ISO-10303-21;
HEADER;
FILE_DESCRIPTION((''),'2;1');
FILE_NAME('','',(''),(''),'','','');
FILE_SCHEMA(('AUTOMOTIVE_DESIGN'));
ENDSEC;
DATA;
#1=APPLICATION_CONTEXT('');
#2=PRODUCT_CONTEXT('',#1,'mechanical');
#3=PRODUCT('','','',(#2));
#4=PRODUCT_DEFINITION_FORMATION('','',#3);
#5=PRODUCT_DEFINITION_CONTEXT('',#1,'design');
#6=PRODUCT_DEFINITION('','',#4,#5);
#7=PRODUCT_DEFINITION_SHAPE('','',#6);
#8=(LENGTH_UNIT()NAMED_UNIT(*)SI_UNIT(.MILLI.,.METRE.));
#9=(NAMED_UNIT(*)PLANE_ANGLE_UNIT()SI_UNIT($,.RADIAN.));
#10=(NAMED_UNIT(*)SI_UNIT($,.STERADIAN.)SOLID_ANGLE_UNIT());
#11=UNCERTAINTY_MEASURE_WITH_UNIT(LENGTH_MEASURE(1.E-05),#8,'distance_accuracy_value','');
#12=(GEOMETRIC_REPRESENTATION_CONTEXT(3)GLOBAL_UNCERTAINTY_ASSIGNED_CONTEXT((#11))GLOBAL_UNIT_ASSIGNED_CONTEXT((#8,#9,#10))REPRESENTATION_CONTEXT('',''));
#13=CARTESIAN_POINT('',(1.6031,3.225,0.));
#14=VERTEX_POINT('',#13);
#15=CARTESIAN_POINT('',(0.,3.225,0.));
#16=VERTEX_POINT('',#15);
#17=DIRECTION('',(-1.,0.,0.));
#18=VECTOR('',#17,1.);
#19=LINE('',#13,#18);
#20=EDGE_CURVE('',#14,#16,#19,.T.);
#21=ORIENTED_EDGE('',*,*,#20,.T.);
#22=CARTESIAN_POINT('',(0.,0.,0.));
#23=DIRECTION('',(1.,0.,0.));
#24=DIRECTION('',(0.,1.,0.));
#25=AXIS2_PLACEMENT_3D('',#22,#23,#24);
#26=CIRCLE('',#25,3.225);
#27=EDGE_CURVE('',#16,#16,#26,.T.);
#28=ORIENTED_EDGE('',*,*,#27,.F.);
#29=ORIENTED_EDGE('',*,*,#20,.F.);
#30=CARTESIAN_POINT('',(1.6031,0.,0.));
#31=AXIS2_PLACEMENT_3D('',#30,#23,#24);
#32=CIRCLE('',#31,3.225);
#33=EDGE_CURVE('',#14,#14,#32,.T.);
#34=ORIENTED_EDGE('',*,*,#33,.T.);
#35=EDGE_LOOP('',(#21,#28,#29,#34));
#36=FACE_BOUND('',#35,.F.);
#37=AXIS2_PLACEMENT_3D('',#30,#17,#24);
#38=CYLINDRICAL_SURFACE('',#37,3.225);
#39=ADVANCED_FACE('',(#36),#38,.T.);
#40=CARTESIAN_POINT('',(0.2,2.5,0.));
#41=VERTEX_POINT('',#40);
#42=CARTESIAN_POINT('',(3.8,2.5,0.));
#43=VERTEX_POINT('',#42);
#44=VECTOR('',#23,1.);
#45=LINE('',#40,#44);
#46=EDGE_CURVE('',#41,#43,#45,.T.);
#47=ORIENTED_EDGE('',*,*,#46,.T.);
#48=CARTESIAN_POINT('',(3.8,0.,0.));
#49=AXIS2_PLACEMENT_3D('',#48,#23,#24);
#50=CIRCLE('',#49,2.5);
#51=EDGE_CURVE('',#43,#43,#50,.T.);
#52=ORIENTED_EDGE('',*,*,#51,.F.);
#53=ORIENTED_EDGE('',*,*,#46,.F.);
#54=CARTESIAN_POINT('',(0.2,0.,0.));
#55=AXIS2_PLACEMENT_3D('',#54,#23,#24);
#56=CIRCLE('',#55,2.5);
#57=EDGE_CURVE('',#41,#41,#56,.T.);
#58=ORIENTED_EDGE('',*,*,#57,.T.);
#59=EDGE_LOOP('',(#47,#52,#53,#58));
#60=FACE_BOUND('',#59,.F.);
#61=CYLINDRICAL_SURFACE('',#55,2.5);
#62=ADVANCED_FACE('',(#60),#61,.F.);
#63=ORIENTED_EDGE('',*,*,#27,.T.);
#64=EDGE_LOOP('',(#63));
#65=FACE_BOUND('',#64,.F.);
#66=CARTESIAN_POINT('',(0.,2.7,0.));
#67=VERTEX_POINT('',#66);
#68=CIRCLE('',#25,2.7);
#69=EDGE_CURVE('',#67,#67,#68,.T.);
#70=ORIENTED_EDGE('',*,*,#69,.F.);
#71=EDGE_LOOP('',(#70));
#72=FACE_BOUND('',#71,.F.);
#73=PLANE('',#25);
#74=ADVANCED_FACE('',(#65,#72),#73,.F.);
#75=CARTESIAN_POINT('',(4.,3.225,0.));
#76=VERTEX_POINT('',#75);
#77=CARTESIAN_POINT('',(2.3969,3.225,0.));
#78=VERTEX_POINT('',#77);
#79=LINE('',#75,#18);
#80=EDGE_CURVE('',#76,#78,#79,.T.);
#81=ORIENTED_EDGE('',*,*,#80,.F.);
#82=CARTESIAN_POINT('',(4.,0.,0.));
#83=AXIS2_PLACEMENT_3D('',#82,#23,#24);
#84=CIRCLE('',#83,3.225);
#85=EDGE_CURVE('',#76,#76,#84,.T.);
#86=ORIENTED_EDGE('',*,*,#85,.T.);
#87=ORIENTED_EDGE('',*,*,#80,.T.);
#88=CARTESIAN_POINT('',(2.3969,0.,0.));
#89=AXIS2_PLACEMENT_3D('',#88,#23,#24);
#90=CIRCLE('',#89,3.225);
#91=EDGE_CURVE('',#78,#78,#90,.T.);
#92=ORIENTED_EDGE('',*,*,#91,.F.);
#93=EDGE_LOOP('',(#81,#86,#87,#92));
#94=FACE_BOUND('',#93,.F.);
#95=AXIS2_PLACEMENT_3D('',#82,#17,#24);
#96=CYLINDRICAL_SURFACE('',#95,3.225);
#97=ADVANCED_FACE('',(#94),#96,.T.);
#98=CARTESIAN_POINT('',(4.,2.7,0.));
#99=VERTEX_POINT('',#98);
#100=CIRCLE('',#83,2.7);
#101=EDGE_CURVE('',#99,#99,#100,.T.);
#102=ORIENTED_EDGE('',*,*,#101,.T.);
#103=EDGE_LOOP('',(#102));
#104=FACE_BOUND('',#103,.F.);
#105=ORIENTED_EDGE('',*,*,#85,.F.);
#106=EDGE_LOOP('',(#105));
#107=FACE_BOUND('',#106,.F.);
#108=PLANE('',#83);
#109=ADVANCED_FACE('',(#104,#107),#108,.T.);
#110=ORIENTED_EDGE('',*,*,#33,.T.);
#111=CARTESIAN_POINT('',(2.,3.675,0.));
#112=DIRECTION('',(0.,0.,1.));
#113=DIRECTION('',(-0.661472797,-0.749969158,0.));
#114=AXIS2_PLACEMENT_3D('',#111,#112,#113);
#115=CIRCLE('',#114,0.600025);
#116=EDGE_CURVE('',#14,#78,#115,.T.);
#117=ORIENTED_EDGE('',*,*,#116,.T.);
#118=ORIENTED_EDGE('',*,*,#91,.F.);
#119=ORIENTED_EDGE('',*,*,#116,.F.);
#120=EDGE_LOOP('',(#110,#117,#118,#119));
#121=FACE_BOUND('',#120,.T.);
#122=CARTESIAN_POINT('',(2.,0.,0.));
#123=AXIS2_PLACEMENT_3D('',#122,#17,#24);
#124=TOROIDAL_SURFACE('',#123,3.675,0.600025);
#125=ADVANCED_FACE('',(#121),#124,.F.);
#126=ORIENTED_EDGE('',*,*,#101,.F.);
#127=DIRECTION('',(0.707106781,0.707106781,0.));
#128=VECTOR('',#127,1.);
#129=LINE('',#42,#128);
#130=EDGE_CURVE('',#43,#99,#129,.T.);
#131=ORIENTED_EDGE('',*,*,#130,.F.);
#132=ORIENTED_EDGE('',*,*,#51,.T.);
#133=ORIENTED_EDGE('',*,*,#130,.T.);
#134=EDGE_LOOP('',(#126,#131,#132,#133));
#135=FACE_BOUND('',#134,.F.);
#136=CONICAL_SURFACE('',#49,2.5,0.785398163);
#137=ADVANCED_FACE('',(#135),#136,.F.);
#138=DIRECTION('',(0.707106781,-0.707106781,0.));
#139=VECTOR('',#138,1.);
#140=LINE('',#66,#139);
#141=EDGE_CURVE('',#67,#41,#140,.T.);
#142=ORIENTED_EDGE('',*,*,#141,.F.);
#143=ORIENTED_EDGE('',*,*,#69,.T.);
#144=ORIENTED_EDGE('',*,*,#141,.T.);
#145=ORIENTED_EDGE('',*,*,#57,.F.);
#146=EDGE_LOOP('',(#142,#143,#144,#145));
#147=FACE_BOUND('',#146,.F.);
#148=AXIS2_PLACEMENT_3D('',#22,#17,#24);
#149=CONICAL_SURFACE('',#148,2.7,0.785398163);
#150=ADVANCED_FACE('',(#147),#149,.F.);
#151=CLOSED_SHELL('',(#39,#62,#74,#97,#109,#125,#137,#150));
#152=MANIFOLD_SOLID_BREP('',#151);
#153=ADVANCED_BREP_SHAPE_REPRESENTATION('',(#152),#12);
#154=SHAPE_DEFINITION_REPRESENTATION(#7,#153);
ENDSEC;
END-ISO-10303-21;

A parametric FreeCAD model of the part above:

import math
import FreeCAD as App
import Part
import Sketcher
from FreeCAD import Vector

doc = App.newDocument("Part")
body = doc.addObject("PartDesign::Body", "Body")

# Sketch on XY plane
sketch1 = body.newObject("Sketcher::SketchObject", "Sketch")
sketch1.AttachmentSupport = (doc.getObject("XY_Plane"), [""])
sketch1.MapMode = "FlatFace"
sketch1.addGeometry([
    Part.LineSegment(Vector(1.6031, 3.225, 0), Vector(0, 3.225, 0)),  # 0
    Part.LineSegment(Vector(0, 3.225, 0), Vector(0, 2.7, 0)),  # 1
    Part.LineSegment(Vector(0, 2.7, 0), Vector(0.2, 2.5, 0)),  # 2
    Part.LineSegment(Vector(0.2, 2.5, 0), Vector(3.8, 2.5, 0)),  # 3
    Part.LineSegment(Vector(3.8, 2.5, 0), Vector(4, 2.7, 0)),  # 4
    Part.LineSegment(Vector(4, 2.7, 0), Vector(4, 3.225, 0)),  # 5
    Part.LineSegment(Vector(4, 3.225, 0), Vector(2.3969, 3.225, 0)),  # 6
    Part.ArcOfCircle(Part.Circle(Vector(2, 3.675, 0), Vector(0, 0, 1), 0.600025), math.radians(-131.412294), math.radians(-48.587706)),  # 7
], False)
sketch1.addConstraint([
    Sketcher.Constraint("Coincident", 0, 2, 1, 1),
    Sketcher.Constraint("Coincident", 1, 2, 2, 1),
    Sketcher.Constraint("Coincident", 2, 2, 3, 1),
    Sketcher.Constraint("Coincident", 3, 2, 4, 1),
    Sketcher.Constraint("Coincident", 4, 2, 5, 1),
    Sketcher.Constraint("Coincident", 5, 2, 6, 1),
    Sketcher.Constraint("Coincident", 6, 2, 7, 2),
    Sketcher.Constraint("Coincident", 7, 1, 0, 1),
    Sketcher.Constraint("Horizontal", 0),
    Sketcher.Constraint("Vertical", 1),
    Sketcher.Constraint("Horizontal", 3),
    Sketcher.Constraint("Vertical", 5),
    Sketcher.Constraint("Horizontal", 6),
    Sketcher.Constraint("PointOnObject", 0, 2, -2),
    Sketcher.Constraint("Perpendicular", 2, 4),
    Sketcher.Constraint("Horizontal", 1, 2, 4, 2),
    Sketcher.Constraint("Horizontal", 0, 2, 5, 2),
    Sketcher.Constraint("Equal", 0, 6),
    Sketcher.Constraint("Equal", 2, 4),
    Sketcher.Constraint("Radius", 7, 0.6),
    Sketcher.Constraint("DistanceX", 3, 1, 3, 2, 3.6),
    Sketcher.Constraint("DistanceX", -1, 1, 7, 3, 2.0),
    Sketcher.Constraint("DistanceY", -1, 1, 1, 2, 2.7),
    Sketcher.Constraint("DistanceX", 0, 2, 0, 1, 1.603),
    Sketcher.Constraint("DistanceY", 1, 2, 1, 1, 0.525),
])
revolution = body.newObject("PartDesign::Revolution", "Revolution")
revolution.Profile = sketch1
revolution.ReferenceAxis = (sketch1, ["H_Axis"])
revolution.Angle = 360

doc.recompute()
